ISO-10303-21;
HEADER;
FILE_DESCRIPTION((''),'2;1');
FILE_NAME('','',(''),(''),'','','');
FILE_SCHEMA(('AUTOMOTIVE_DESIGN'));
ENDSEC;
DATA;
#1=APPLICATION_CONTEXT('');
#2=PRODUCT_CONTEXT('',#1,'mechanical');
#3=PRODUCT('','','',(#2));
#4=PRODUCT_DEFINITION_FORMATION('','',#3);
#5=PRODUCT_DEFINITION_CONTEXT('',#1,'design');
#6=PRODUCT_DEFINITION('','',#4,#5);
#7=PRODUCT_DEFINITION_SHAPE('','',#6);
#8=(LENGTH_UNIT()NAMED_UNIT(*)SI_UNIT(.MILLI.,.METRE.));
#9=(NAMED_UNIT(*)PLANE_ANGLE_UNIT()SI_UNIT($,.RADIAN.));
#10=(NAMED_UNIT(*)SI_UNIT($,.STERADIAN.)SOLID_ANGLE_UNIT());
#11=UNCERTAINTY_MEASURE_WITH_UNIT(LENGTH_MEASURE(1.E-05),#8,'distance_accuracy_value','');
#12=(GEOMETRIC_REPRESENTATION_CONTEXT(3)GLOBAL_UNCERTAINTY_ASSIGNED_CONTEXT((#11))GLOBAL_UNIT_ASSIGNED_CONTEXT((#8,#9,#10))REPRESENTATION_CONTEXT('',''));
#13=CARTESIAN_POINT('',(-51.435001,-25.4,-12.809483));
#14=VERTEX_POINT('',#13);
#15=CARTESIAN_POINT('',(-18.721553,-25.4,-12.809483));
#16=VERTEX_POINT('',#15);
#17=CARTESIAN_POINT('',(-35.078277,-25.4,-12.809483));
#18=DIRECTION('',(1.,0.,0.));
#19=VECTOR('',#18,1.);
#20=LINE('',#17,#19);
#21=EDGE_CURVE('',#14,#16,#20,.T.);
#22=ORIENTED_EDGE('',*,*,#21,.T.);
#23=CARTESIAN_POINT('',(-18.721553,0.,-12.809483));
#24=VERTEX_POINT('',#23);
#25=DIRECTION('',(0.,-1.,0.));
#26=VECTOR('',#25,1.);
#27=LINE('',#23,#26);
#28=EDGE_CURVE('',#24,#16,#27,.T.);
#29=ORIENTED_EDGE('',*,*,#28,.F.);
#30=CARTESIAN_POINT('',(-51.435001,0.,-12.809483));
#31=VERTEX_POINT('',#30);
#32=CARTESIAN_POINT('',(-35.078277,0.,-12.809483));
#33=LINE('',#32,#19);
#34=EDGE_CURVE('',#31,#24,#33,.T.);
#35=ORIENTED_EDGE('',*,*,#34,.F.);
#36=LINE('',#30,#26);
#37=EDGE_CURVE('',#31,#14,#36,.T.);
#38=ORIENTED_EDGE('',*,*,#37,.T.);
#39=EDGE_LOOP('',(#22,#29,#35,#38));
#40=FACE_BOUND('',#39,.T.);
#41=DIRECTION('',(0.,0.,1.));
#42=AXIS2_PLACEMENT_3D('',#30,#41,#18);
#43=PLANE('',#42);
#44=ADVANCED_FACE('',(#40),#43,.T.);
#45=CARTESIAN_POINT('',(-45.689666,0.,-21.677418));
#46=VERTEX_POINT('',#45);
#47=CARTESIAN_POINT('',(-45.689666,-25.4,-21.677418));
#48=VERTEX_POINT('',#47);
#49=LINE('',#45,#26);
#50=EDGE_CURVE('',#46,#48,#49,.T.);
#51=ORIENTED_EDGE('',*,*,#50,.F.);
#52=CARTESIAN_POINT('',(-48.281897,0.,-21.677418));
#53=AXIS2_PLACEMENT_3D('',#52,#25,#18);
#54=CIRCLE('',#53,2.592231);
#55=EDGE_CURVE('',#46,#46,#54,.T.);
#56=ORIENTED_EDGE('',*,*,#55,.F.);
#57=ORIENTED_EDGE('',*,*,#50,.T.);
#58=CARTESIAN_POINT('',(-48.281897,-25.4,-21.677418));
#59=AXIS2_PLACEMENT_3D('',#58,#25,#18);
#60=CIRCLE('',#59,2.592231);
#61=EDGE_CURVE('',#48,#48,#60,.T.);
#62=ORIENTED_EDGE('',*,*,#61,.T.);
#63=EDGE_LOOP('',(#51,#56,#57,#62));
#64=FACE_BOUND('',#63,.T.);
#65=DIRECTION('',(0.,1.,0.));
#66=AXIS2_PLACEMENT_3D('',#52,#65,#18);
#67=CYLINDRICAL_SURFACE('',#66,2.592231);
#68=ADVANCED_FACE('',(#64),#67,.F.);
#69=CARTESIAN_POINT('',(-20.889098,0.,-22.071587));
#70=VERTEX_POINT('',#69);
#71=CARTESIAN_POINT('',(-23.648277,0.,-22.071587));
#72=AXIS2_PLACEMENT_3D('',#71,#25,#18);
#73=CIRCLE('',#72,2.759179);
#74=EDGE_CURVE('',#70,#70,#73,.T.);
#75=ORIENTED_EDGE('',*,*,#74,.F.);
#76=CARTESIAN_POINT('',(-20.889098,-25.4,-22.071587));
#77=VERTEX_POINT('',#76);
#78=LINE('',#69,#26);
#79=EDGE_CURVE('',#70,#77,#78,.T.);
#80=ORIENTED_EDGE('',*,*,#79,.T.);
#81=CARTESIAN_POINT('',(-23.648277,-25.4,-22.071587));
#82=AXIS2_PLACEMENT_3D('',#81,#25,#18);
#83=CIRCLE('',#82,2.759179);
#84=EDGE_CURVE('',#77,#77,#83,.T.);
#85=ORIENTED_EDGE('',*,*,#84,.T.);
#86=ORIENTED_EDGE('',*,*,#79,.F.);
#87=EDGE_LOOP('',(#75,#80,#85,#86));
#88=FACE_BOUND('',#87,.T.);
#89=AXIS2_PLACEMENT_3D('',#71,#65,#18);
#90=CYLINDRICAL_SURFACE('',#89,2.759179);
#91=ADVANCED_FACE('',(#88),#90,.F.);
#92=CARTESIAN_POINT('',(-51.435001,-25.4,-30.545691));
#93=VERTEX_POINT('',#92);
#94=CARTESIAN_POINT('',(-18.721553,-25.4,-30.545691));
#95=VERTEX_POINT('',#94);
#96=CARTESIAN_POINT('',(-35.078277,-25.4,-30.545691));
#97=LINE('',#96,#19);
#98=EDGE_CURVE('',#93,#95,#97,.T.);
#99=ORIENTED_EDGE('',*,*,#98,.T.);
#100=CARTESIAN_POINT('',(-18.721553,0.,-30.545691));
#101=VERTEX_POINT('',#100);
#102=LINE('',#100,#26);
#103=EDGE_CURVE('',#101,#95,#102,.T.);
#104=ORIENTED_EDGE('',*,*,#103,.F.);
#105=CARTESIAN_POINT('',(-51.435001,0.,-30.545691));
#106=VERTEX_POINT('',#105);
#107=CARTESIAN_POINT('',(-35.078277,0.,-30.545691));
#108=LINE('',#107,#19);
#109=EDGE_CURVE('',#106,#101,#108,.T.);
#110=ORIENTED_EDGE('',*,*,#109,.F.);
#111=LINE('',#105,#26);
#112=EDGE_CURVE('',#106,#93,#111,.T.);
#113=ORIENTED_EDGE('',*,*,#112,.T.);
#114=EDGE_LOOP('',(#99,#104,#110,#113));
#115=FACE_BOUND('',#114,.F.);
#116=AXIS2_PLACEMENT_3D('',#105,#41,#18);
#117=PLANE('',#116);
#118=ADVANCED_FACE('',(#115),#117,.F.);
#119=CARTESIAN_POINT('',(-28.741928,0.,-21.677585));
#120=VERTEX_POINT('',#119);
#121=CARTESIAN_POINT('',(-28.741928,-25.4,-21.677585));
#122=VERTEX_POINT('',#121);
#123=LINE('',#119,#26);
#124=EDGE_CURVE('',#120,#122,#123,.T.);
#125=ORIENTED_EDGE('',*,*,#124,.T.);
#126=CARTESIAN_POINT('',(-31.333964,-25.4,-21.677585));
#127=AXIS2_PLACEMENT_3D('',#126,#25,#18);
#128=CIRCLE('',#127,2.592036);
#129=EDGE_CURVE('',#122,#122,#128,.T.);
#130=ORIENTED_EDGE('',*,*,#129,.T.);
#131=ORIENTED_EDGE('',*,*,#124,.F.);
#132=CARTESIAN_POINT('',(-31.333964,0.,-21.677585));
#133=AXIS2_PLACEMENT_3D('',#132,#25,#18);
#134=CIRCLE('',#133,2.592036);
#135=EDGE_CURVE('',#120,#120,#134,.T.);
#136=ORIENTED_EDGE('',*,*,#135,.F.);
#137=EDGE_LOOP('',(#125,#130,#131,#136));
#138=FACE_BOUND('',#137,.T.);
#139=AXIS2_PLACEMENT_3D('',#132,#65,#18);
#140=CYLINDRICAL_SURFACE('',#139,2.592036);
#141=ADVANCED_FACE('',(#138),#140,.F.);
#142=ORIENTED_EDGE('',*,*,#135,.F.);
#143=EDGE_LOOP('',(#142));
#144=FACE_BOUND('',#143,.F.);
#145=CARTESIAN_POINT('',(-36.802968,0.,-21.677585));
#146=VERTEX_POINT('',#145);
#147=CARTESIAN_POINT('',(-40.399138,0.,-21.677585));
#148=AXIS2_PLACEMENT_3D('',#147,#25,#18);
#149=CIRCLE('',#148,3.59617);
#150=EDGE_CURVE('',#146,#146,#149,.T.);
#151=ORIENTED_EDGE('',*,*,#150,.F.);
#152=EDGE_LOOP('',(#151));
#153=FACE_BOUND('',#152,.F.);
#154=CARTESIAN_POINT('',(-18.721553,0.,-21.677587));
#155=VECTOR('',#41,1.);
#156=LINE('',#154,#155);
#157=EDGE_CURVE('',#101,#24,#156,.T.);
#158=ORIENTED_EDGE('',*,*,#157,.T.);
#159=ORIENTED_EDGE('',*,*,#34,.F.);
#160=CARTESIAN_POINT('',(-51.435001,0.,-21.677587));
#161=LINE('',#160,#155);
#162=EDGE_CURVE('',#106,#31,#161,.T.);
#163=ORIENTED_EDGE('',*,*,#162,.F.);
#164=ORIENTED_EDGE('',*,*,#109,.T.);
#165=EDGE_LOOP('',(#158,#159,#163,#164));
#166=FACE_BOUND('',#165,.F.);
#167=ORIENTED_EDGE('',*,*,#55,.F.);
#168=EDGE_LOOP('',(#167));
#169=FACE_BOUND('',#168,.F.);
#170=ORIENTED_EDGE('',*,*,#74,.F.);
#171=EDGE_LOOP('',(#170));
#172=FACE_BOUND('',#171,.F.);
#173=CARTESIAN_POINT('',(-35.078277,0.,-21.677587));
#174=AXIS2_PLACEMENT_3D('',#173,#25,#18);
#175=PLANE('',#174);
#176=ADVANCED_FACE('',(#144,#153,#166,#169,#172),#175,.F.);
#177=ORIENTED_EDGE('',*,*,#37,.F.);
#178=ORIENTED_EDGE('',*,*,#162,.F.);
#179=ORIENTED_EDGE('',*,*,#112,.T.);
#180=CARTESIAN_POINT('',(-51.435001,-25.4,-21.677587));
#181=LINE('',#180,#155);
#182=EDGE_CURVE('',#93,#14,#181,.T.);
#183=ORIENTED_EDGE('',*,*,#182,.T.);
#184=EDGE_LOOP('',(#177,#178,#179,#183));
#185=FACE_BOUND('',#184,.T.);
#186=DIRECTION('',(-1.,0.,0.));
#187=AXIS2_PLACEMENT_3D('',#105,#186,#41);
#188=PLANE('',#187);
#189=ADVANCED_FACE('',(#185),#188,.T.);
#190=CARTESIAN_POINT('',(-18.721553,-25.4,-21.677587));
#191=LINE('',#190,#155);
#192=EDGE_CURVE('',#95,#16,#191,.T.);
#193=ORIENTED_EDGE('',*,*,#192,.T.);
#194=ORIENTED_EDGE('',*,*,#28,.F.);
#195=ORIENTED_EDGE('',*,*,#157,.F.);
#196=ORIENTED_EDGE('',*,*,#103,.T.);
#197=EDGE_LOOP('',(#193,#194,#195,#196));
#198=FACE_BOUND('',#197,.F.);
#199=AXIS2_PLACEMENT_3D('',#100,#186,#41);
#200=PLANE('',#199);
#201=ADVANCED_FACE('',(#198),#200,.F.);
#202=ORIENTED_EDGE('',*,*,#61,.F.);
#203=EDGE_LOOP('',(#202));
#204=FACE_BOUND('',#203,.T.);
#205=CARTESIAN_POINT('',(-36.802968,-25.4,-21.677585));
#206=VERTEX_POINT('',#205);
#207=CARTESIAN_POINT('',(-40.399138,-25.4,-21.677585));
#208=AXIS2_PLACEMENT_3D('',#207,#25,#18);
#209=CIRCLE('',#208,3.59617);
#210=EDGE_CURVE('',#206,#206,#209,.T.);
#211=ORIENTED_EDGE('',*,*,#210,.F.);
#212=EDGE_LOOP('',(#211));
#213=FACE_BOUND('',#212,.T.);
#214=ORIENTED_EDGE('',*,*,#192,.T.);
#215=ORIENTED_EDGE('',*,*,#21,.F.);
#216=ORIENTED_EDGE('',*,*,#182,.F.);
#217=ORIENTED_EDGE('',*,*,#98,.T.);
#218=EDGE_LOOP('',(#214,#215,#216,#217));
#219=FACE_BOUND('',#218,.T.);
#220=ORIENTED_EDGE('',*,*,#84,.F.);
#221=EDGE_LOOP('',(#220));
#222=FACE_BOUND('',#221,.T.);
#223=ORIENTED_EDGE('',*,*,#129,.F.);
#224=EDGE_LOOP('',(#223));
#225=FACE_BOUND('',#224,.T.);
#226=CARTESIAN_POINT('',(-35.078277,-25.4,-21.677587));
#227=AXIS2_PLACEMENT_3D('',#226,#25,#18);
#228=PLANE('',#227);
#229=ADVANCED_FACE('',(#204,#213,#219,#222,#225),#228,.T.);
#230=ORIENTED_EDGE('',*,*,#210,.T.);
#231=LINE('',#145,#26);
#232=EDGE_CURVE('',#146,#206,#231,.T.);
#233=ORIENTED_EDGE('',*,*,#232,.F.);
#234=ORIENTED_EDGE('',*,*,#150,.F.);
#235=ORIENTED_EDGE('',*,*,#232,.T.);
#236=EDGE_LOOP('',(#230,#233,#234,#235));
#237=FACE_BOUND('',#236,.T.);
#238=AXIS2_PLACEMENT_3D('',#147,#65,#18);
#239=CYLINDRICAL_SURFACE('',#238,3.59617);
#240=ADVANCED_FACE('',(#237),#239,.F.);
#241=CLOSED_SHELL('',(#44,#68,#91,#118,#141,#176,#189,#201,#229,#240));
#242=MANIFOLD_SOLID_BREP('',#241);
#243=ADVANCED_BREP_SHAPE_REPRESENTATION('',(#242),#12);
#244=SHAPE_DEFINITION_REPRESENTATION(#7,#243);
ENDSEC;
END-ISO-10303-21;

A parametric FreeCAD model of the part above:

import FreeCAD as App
import Part
import Sketcher
from FreeCAD import Vector
Q = App.Units.Quantity


def add_polygon(sketch, points):
    """Adds a closed chain of lines whose ends are joined by coincident constraints."""
    first, n = sketch.GeometryCount, len(points)
    for a, b in zip(points, points[1:] + points[:1]):
        sketch.addGeometry(Part.LineSegment(App.Vector(*a, 0), App.Vector(*b, 0)), False)
    for i in range(n):
        sketch.addConstraint(Sketcher.Constraint("Coincident", first + i, 2, first + (i + 1) % n, 1))

doc = App.newDocument("Part")
body = doc.addObject("PartDesign::Body", "Body")

sketch1 = body.newObject("Sketcher::SketchObject", "Sketch")
sketch1.AttachmentSupport = (doc.getObject("XZ_Plane"), [""])
sketch1.MapMode = "FlatFace"
add_polygon(sketch1, [(-51.4, -12.8), (-51.4, -30.5), (-18.7, -30.5), (-18.7, -12.8)])
sketch1.addGeometry(Part.Circle(Vector(-23.6, -22.1, 0), Vector(0, 0, 1), 2.8), False)
sketch1.addGeometry(Part.Circle(Vector(-48.3, -21.7, 0), Vector(0, 0, 1), 2.6), False)
sketch1.addGeometry(Part.Circle(Vector(-40.4, -21.7, 0), Vector(0, 0, 1), 3.6), False)
sketch1.addGeometry(Part.Circle(Vector(-31.3, -21.7, 0), Vector(0, 0, 1), 2.6), False)
sketch1.addConstraint(Sketcher.Constraint("Vertical", 0))
sketch1.addConstraint(Sketcher.Constraint("Horizontal", 1))
sketch1.addConstraint(Sketcher.Constraint("Vertical", 2))
sketch1.addConstraint(Sketcher.Constraint("Horizontal", 3))
sketch1.addConstraint(Sketcher.Constraint("Horizontal", 6, 3, 7, 3))
sketch1.addConstraint(Sketcher.Constraint("Diameter", 6, 7.19234))
sketch1.addConstraint(Sketcher.Constraint("Diameter", 7, 5.184072))
sketch1.addConstraint(Sketcher.Constraint("DistanceX", 0, 2, -1, 1, Q("2.025 in")))
sketch1.addConstraint(Sketcher.Constraint("Diameter", 4, 5.518358))
sketch1.addConstraint(Sketcher.Constraint("Diameter", 5, 5.184462))
sketch1.addConstraint(Sketcher.Constraint("DistanceY", 0, 2, 0, 1, 17.736208))
sketch1.addConstraint(Sketcher.Constraint("DistanceX", 1, 1, 1, 2, 32.713448))
sketch1.addConstraint(Sketcher.Constraint("DistanceY", 0, 2, -1, 1, 30.545691))
sketch1.addConstraint(Sketcher.Constraint("DistanceX", 5, 3, 4, 3, 24.63362))
sketch1.addConstraint(Sketcher.Constraint("DistanceY", 4, 3, 5, 3, 0.394169))
sketch1.addConstraint(Sketcher.Constraint("DistanceX", 5, 3, 6, 3, 7.882759))
sketch1.addConstraint(Sketcher.Constraint("DistanceX", 7, 3, 1, 2, 12.612411))
sketch1.addConstraint(Sketcher.Constraint("DistanceX", 4, 3, -1, 1, 23.648277))
sketch1.addConstraint(Sketcher.Constraint("DistanceY", 4, 3, -1, 1, 22.071587))
sketch1.addConstraint(Sketcher.Constraint("DistanceY", 6, 3, -1, 1, 21.677585))
pad1 = body.newObject("PartDesign::Pad", "Pad")
pad1.Profile = sketch1
pad1.Length = Q("1 in")

doc.recompute()
